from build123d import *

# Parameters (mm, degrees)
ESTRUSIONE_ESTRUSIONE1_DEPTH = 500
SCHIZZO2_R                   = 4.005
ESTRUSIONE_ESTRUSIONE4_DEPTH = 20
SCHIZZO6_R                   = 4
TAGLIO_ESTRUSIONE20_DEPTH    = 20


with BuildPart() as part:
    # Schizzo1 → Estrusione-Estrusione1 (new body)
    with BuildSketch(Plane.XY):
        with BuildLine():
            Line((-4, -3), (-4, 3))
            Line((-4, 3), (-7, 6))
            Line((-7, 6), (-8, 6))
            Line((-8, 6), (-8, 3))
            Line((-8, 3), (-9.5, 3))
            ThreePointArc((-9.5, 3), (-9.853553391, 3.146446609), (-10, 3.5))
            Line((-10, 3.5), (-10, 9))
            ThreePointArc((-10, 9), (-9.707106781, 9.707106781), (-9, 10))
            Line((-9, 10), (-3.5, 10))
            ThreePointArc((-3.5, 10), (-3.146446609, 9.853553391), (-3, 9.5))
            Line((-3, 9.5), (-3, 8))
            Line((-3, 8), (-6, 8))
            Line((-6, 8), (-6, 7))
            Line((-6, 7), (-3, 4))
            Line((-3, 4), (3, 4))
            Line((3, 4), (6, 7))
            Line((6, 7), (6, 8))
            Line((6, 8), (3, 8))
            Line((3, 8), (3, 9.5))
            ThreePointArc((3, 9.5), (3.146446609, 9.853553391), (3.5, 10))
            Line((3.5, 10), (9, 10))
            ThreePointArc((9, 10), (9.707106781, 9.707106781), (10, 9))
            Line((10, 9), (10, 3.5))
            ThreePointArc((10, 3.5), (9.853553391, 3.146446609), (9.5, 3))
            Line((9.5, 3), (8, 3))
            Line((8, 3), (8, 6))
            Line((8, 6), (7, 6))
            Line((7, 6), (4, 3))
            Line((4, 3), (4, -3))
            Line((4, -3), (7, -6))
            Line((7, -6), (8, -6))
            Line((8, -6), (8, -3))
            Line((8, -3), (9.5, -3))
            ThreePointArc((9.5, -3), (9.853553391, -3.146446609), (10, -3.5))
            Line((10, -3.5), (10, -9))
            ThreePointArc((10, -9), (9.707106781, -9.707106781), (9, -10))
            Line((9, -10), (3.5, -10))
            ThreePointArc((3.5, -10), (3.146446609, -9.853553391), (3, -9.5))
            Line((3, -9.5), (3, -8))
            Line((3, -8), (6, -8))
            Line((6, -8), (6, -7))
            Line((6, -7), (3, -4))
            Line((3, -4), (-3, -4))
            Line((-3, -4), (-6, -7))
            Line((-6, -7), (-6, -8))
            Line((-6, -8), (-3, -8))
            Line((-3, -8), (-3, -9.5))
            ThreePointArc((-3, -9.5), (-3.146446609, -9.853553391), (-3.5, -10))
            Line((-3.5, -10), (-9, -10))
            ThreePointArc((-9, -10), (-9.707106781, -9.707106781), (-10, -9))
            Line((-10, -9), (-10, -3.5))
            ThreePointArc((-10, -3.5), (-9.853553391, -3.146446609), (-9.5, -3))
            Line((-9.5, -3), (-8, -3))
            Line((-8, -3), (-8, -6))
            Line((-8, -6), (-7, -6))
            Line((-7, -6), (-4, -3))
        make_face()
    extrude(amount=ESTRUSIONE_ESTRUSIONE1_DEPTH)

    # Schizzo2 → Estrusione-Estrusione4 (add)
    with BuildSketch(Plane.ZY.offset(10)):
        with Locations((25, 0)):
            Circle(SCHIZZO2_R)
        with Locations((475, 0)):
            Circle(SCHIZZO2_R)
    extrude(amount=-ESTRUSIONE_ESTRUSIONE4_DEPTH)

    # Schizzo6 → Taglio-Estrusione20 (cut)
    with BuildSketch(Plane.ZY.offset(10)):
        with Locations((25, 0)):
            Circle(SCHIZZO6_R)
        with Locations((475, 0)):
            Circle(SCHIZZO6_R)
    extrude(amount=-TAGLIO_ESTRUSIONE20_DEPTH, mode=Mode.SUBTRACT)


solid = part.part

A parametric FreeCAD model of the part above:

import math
import FreeCAD as App
import Part
import Sketcher

V = App.Vector
Q = App.Units.Quantity

doc = App.newDocument("Part")
body = doc.addObject("PartDesign::Body", "Body")

sketch1 = body.newObject("Sketcher::SketchObject", "Sketch")
sketch1.AttachmentSupport = (doc.getObject("XY_Plane"), [""])
sketch1.MapMode = "FlatFace"
sketch1.addGeometry([
    Part.LineSegment(V(-4, 3, 0), V(-4, -3, 0)),
    Part.LineSegment(V(-4, -3, 0), V(-7, -6, 0)),
    Part.LineSegment(V(-7, -6, 0), V(-8, -6, 0)),
    Part.LineSegment(V(-8, -6, 0), V(-8, -3, 0)),
    Part.LineSegment(V(-8, -3, 0), V(-9.5, -3, 0)),
    Part.ArcOfCircle(Part.Circle(V(-9.5, -3.5, 0), V(0, 0, 1), 0.5), math.radians(90), math.radians(180)),
    Part.LineSegment(V(-10, -3.5, 0), V(-10, -9, 0)),
    Part.ArcOfCircle(Part.Circle(V(-9, -9, 0), V(0, 0, 1), 1), math.radians(-180), math.radians(-90)),
    Part.LineSegment(V(-9, -10, 0), V(-3.5, -10, 0)),
    Part.ArcOfCircle(Part.Circle(V(-3.5, -9.5, 0), V(0, 0, 1), 0.5), math.radians(-90), math.radians(0)),
    Part.LineSegment(V(-3, -9.5, 0), V(-3, -8, 0)),
    Part.LineSegment(V(-3, -8, 0), V(-6, -8, 0)),
    Part.LineSegment(V(-6, -8, 0), V(-6, -7, 0)),
    Part.LineSegment(V(-6, -7, 0), V(-3, -4, 0)),
    Part.LineSegment(V(-3, -4, 0), V(3, -4, 0)),
    Part.LineSegment(V(3, -4, 0), V(6, -7, 0)),
    Part.LineSegment(V(6, -7, 0), V(6, -8, 0)),
    Part.LineSegment(V(6, -8, 0), V(3, -8, 0)),
    Part.LineSegment(V(3, -8, 0), V(3, -9.5, 0)),
    Part.ArcOfCircle(Part.Circle(V(3.5, -9.5, 0), V(0, 0, 1), 0.5), math.radians(180), math.radians(270)),
    Part.LineSegment(V(3.5, -10, 0), V(9, -10, 0)),
    Part.ArcOfCircle(Part.Circle(V(9, -9, 0), V(0, 0, 1), 1), math.radians(-90), math.radians(0)),
    Part.LineSegment(V(10, -9, 0), V(10, -3.5, 0)),
    Part.ArcOfCircle(Part.Circle(V(9.5, -3.5, 0), V(0, 0, 1), 0.5), math.radians(0), math.radians(90)),
    Part.LineSegment(V(9.5, -3, 0), V(8, -3, 0)),
    Part.LineSegment(V(8, -3, 0), V(8, -6, 0)),
    Part.LineSegment(V(8, -6, 0), V(7, -6, 0)),
    Part.LineSegment(V(7, -6, 0), V(4, -3, 0)),
    Part.LineSegment(V(4, -3, 0), V(4, 3, 0)),
    Part.LineSegment(V(4, 3, 0), V(7, 6, 0)),
    Part.LineSegment(V(7, 6, 0), V(8, 6, 0)),
    Part.LineSegment(V(8, 6, 0), V(8, 3, 0)),
    Part.LineSegment(V(8, 3, 0), V(9.5, 3, 0)),
    Part.ArcOfCircle(Part.Circle(V(9.5, 3.5, 0), V(0, 0, 1), 0.5), math.radians(-90), math.radians(0)),
    Part.LineSegment(V(10, 3.5, 0), V(10, 9, 0)),
    Part.ArcOfCircle(Part.Circle(V(9, 9, 0), V(0, 0, 1), 1), math.radians(0), math.radians(90)),
    Part.LineSegment(V(9, 10, 0), V(3.5, 10, 0)),
    Part.ArcOfCircle(Part.Circle(V(3.5, 9.5, 0), V(0, 0, 1), 0.5), math.radians(90), math.radians(180)),
    Part.LineSegment(V(3, 9.5, 0), V(3, 8, 0)),
    Part.LineSegment(V(3, 8, 0), V(6, 8, 0)),
    Part.LineSegment(V(6, 8, 0), V(6, 7, 0)),
    Part.LineSegment(V(6, 7, 0), V(3, 4, 0)),
    Part.LineSegment(V(3, 4, 0), V(-3, 4, 0)),
    Part.LineSegment(V(-3, 4, 0), V(-6, 7, 0)),
    Part.LineSegment(V(-6, 7, 0), V(-6, 8, 0)),
    Part.LineSegment(V(-6, 8, 0), V(-3, 8, 0)),
    Part.LineSegment(V(-3, 8, 0), V(-3, 9.5, 0)),
    Part.ArcOfCircle(Part.Circle(V(-3.5, 9.5, 0), V(0, 0, 1), 0.5), math.radians(0), math.radians(90)),
    Part.LineSegment(V(-3.5, 10, 0), V(-9, 10, 0)),
    Part.ArcOfCircle(Part.Circle(V(-9, 9, 0), V(0, 0, 1), 1), math.radians(90), math.radians(180)),
    Part.LineSegment(V(-10, 9, 0), V(-10, 3.5, 0)),
    Part.ArcOfCircle(Part.Circle(V(-9.5, 3.5, 0), V(0, 0, 1), 0.5), math.radians(180), math.radians(270)),
    Part.LineSegment(V(-9.5, 3, 0), V(-8, 3, 0)),
    Part.LineSegment(V(-8, 3, 0), V(-8, 6, 0)),
    Part.LineSegment(V(-8, 6, 0), V(-7, 6, 0)),
    Part.LineSegment(V(-7, 6, 0), V(-4, 3, 0)),
], False)
sketch1.addConstraint([
    Sketcher.Constraint("Coincident", 0, 2, 1, 1),
    Sketcher.Constraint("Coincident", 1, 2, 2, 1),
    Sketcher.Constraint("Coincident", 2, 2, 3, 1),
    Sketcher.Constraint("Coincident", 3, 2, 4, 1),
    Sketcher.Constraint("Tangent", 4, 2, 5, 1),
    Sketcher.Constraint("Tangent", 5, 2, 6, 1),
    Sketcher.Constraint("Tangent", 6, 2, 7, 1),
    Sketcher.Constraint("Tangent", 7, 2, 8, 1),
    Sketcher.Constraint("Tangent", 8, 2, 9, 1),
    Sketcher.Constraint("Tangent", 9, 2, 10, 1),
    Sketcher.Constraint("Coincident", 10, 2, 11, 1),
    Sketcher.Constraint("Coincident", 11, 2, 12, 1),
    Sketcher.Constraint("Coincident", 12, 2, 13, 1),
    Sketcher.Constraint("Coincident", 13, 2, 14, 1),
    Sketcher.Constraint("Coincident", 14, 2, 15, 1),
    Sketcher.Constraint("Coincident", 15, 2, 16, 1),
    Sketcher.Constraint("Coincident", 16, 2, 17, 1),
    Sketcher.Constraint("Coincident", 17, 2, 18, 1),
    Sketcher.Constraint("Tangent", 18, 2, 19, 1),
    Sketcher.Constraint("Tangent", 19, 2, 20, 1),
    Sketcher.Constraint("Tangent", 20, 2, 21, 1),
    Sketcher.Constraint("Tangent", 21, 2, 22, 1),
    Sketcher.Constraint("Tangent", 22, 2, 23, 1),
    Sketcher.Constraint("Tangent", 23, 2, 24, 1),
    Sketcher.Constraint("Coincident", 24, 2, 25, 1),
    Sketcher.Constraint("Coincident", 25, 2, 26, 1),
    Sketcher.Constraint("Coincident", 26, 2, 27, 1),
    Sketcher.Constraint("Coincident", 27, 2, 28, 1),
    Sketcher.Constraint("Coincident", 28, 2, 29, 1),
    Sketcher.Constraint("Coincident", 29, 2, 30, 1),
    Sketcher.Constraint("Coincident", 30, 2, 31, 1),
    Sketcher.Constraint("Coincident", 31, 2, 32, 1),
    Sketcher.Constraint("Tangent", 32, 2, 33, 1),
    Sketcher.Constraint("Tangent", 33, 2, 34, 1),
    Sketcher.Constraint("Tangent", 34, 2, 35, 1),
    Sketcher.Constraint("Tangent", 35, 2, 36, 1),
    Sketcher.Constraint("Tangent", 36, 2, 37, 1),
    Sketcher.Constraint("Tangent", 37, 2, 38, 1),
    Sketcher.Constraint("Coincident", 38, 2, 39, 1),
    Sketcher.Constraint("Coincident", 39, 2, 40, 1),
    Sketcher.Constraint("Coincident", 40, 2, 41, 1),
    Sketcher.Constraint("Coincident", 41, 2, 42, 1),
    Sketcher.Constraint("Coincident", 42, 2, 43, 1),
    Sketcher.Constraint("Coincident", 43, 2, 44, 1),
    Sketcher.Constraint("Coincident", 44, 2, 45, 1),
    Sketcher.Constraint("Coincident", 45, 2, 46, 1),
    Sketcher.Constraint("Tangent", 46, 2, 47, 1),
    Sketcher.Constraint("Tangent", 47, 2, 48, 1),
    Sketcher.Constraint("Tangent", 48, 2, 49, 1),
    Sketcher.Constraint("Tangent", 49, 2, 50, 1),
    Sketcher.Constraint("Tangent", 50, 2, 51, 1),
    Sketcher.Constraint("Tangent", 51, 2, 52, 1),
    Sketcher.Constraint("Coincident", 52, 2, 53, 1),
    Sketcher.Constraint("Coincident", 53, 2, 54, 1),
    Sketcher.Constraint("Coincident", 54, 2, 55, 1),
    Sketcher.Constraint("Coincident", 55, 2, 0, 1),
    Sketcher.Constraint("Vertical", 0),
    Sketcher.Constraint("Horizontal", 2),
    Sketcher.Constraint("Vertical", 3),
    Sketcher.Constraint("Horizontal", 4),
    Sketcher.Constraint("Vertical", 6),
    Sketcher.Constraint("Horizontal", 8),
    Sketcher.Constraint("Vertical", 10),
    Sketcher.Constraint("Horizontal", 11),
    Sketcher.Constraint("Vertical", 12),
    Sketcher.Constraint("Horizontal", 14),
    Sketcher.Constraint("Vertical", 16),
    Sketcher.Constraint("Horizontal", 17),
    Sketcher.Constraint("Vertical", 18),
    Sketcher.Constraint("Horizontal", 20),
    Sketcher.Constraint("Vertical", 22),
    Sketcher.Constraint("Horizontal", 24),
    Sketcher.Constraint("Vertical", 25),
    Sketcher.Constraint("Horizontal", 26),
    Sketcher.Constraint("Vertical", 28),
    Sketcher.Constraint("Horizontal", 30),
    Sketcher.Constraint("Vertical", 31),
    Sketcher.Constraint("Horizontal", 32),
    Sketcher.Constraint("Vertical", 34),
    Sketcher.Constraint("Horizontal", 36),
    Sketcher.Constraint("Vertical", 38),
    Sketcher.Constraint("Horizontal", 39),
    Sketcher.Constraint("Vertical", 40),
    Sketcher.Constraint("Horizontal", 42),
    Sketcher.Constraint("Vertical", 44),
    Sketcher.Constraint("Horizontal", 45),
    Sketcher.Constraint("Vertical", 46),
    Sketcher.Constraint("Horizontal", 48),
    Sketcher.Constraint("Vertical", 50),
    Sketcher.Constraint("Horizontal", 52),
    Sketcher.Constraint("Vertical", 53),
    Sketcher.Constraint("Horizontal", 54),
    Sketcher.Constraint("Equal", 5, 9),
    Sketcher.Constraint("Equal", 9, 19),
    Sketcher.Constraint("Equal", 7, 21),
    Sketcher.Constraint("Equal", 19, 23),
    Sketcher.Constraint("Equal", 23, 33),
    Sketcher.Constraint("Equal", 21, 35),
    Sketcher.Constraint("Equal", 33, 37),
    Sketcher.Constraint("Equal", 37, 47),
    Sketcher.Constraint("Equal", 35, 49),
    Sketcher.Constraint("Equal", 47, 51),
    Sketcher.Constraint("Symmetric", 5, 3, 33, 3, -1, 1),
    Sketcher.Constraint("Symmetric", 9, 3, 37, 3, -1, 1),
    Sketcher.Constraint("Symmetric", 19, 3, 47, 3, -1, 1),
    Sketcher.Constraint("Symmetric", 23, 3, 51, 3, -1, 1),
    Sketcher.Constraint("Symmetric", 0, 2, 28, 2, -1, 1),
    Sketcher.Constraint("Symmetric", 1, 2, 29, 2, -1, 1),
    Sketcher.Constraint("Symmetric", 11, 2, 39, 2, -1, 1),
    Sketcher.Constraint("Symmetric", 13, 2, 41, 2, -1, 1),
    Sketcher.Constraint("Symmetric", 15, 2, 43, 2, -1, 1),
    Sketcher.Constraint("Symmetric", 25, 2, 53, 2, -1, 1),
    Sketcher.Constraint("Symmetric", 9, 3, 19, 3, -2),
    Sketcher.Constraint("Symmetric", 5, 3, 23, 3, -2),
    Sketcher.Constraint("Symmetric", 12, 2, 15, 2, -2),
    Sketcher.Constraint("Symmetric", 2, 2, 25, 2, -2),
    Sketcher.Constraint("Parallel", 1, 13),
    Sketcher.Constraint("Perpendicular", 13, 15),
    Sketcher.Constraint("Parallel", 15, 27),
    Sketcher.Constraint("Parallel", 29, 41),
    Sketcher.Constraint("Perpendicular", 41, 43),
    Sketcher.Constraint("Parallel", 43, 55),
    Sketcher.Constraint("Horizontal", 0, 2, 3, 2),
    Sketcher.Constraint("Horizontal", 11, 2, 16, 2),
    Sketcher.Constraint("Horizontal", 24, 2, 27, 2),
    Sketcher.Constraint("Horizontal", 39, 2, 44, 2),
    Sketcher.Constraint("Horizontal", 52, 2, 55, 2),
    Sketcher.Constraint("Vertical", 10, 2, 13, 2),
    Sketcher.Constraint("Vertical", 14, 2, 17, 2),
    Sketcher.Constraint("Vertical", 25, 2, 30, 2),
    Sketcher.Constraint("Equal", 42, 0),
    Sketcher.Constraint("Equal", 45, 3),
    Sketcher.Constraint("Equal", 48, 6),
    Sketcher.Constraint("Equal", 52, 10),
    Sketcher.Constraint("Equal", 54, 12),
    Sketcher.Constraint("Radius", 7, Q("1 mm")),
    Sketcher.Constraint("Radius", 5, Q("0.5 mm")),
    Sketcher.Constraint("DistanceX", 2, 2, 2, 1, Q("1 mm")),
    Sketcher.Constraint("DistanceX", 11, 2, 11, 1, Q("3 mm")),
    Sketcher.Constraint("DistanceX", 14, 1, 14, 2, Q("6 mm")),
    Sketcher.Constraint("DistanceX", 4, 2, 4, 1, Q("1.5 mm")),
    Sketcher.Constraint("DistanceX", 8, 1, 8, 2, Q("5.5 mm")),
])
pad1 = body.newObject("PartDesign::Pad", "Pad")
pad1.Profile = sketch1
pad1.Length = 500

sketch2 = body.newObject("Sketcher::SketchObject", "Sketch001")
sketch2.AttachmentSupport = (doc.getObject("YZ_Plane"), [""])
sketch2.MapMode = "FlatFace"
sketch2.AttachmentOffset = App.Placement(V(0, 0, -10), App.Rotation())
sketch2.addGeometry([
    Part.Circle(V(0, 25, 0), V(0, 0, 1), 4),
    Part.Circle(V(0, 475, 0), V(0, 0, 1), 4),
], False)
sketch2.addConstraint([
    Sketcher.Constraint("Equal", 0, 1),
    Sketcher.Constraint("PointOnObject", 0, 3, -2),
    Sketcher.Constraint("PointOnObject", 1, 3, -2),
    Sketcher.Constraint("Diameter", 0, Q("8.01 mm")),
    Sketcher.Constraint("DistanceY", -1, 1, 0, 3, Q("25 mm")),
    Sketcher.Constraint("DistanceY", -1, 1, 1, 3, Q("475 mm")),
])
pad2 = body.newObject("PartDesign::Pad", "Pad001")
pad2.Profile = sketch2
pad2.Length = 20

sketch3 = body.newObject("Sketcher::SketchObject", "Sketch002")
sketch3.AttachmentSupport = (doc.getObject("YZ_Plane"), [""])
sketch3.MapMode = "FlatFace"
sketch3.AttachmentOffset = App.Placement(V(0, 0, -10), App.Rotation())
sketch3.addGeometry([
    Part.Circle(V(0, 25, 0), V(0, 0, 1), 4),
    Part.Circle(V(0, 475, 0), V(0, 0, 1), 4),
], False)
sketch3.addConstraint([
    Sketcher.Constraint("Equal", 0, 1),
    Sketcher.Constraint("PointOnObject", 0, 3, -2),
    Sketcher.Constraint("PointOnObject", 1, 3, -2),
    Sketcher.Constraint("Diameter", 0, Q("8 mm")),
    Sketcher.Constraint("DistanceY", -1, 1, 0, 3, Q("25 mm")),
    Sketcher.Constraint("DistanceY", -1, 1, 1, 3, Q("475 mm")),
])
pocket1 = body.newObject("PartDesign::Pocket", "Pocket")
pocket1.Profile = sketch3
pocket1.Length = 20
pocket1.Reversed = True

doc.recompute()
